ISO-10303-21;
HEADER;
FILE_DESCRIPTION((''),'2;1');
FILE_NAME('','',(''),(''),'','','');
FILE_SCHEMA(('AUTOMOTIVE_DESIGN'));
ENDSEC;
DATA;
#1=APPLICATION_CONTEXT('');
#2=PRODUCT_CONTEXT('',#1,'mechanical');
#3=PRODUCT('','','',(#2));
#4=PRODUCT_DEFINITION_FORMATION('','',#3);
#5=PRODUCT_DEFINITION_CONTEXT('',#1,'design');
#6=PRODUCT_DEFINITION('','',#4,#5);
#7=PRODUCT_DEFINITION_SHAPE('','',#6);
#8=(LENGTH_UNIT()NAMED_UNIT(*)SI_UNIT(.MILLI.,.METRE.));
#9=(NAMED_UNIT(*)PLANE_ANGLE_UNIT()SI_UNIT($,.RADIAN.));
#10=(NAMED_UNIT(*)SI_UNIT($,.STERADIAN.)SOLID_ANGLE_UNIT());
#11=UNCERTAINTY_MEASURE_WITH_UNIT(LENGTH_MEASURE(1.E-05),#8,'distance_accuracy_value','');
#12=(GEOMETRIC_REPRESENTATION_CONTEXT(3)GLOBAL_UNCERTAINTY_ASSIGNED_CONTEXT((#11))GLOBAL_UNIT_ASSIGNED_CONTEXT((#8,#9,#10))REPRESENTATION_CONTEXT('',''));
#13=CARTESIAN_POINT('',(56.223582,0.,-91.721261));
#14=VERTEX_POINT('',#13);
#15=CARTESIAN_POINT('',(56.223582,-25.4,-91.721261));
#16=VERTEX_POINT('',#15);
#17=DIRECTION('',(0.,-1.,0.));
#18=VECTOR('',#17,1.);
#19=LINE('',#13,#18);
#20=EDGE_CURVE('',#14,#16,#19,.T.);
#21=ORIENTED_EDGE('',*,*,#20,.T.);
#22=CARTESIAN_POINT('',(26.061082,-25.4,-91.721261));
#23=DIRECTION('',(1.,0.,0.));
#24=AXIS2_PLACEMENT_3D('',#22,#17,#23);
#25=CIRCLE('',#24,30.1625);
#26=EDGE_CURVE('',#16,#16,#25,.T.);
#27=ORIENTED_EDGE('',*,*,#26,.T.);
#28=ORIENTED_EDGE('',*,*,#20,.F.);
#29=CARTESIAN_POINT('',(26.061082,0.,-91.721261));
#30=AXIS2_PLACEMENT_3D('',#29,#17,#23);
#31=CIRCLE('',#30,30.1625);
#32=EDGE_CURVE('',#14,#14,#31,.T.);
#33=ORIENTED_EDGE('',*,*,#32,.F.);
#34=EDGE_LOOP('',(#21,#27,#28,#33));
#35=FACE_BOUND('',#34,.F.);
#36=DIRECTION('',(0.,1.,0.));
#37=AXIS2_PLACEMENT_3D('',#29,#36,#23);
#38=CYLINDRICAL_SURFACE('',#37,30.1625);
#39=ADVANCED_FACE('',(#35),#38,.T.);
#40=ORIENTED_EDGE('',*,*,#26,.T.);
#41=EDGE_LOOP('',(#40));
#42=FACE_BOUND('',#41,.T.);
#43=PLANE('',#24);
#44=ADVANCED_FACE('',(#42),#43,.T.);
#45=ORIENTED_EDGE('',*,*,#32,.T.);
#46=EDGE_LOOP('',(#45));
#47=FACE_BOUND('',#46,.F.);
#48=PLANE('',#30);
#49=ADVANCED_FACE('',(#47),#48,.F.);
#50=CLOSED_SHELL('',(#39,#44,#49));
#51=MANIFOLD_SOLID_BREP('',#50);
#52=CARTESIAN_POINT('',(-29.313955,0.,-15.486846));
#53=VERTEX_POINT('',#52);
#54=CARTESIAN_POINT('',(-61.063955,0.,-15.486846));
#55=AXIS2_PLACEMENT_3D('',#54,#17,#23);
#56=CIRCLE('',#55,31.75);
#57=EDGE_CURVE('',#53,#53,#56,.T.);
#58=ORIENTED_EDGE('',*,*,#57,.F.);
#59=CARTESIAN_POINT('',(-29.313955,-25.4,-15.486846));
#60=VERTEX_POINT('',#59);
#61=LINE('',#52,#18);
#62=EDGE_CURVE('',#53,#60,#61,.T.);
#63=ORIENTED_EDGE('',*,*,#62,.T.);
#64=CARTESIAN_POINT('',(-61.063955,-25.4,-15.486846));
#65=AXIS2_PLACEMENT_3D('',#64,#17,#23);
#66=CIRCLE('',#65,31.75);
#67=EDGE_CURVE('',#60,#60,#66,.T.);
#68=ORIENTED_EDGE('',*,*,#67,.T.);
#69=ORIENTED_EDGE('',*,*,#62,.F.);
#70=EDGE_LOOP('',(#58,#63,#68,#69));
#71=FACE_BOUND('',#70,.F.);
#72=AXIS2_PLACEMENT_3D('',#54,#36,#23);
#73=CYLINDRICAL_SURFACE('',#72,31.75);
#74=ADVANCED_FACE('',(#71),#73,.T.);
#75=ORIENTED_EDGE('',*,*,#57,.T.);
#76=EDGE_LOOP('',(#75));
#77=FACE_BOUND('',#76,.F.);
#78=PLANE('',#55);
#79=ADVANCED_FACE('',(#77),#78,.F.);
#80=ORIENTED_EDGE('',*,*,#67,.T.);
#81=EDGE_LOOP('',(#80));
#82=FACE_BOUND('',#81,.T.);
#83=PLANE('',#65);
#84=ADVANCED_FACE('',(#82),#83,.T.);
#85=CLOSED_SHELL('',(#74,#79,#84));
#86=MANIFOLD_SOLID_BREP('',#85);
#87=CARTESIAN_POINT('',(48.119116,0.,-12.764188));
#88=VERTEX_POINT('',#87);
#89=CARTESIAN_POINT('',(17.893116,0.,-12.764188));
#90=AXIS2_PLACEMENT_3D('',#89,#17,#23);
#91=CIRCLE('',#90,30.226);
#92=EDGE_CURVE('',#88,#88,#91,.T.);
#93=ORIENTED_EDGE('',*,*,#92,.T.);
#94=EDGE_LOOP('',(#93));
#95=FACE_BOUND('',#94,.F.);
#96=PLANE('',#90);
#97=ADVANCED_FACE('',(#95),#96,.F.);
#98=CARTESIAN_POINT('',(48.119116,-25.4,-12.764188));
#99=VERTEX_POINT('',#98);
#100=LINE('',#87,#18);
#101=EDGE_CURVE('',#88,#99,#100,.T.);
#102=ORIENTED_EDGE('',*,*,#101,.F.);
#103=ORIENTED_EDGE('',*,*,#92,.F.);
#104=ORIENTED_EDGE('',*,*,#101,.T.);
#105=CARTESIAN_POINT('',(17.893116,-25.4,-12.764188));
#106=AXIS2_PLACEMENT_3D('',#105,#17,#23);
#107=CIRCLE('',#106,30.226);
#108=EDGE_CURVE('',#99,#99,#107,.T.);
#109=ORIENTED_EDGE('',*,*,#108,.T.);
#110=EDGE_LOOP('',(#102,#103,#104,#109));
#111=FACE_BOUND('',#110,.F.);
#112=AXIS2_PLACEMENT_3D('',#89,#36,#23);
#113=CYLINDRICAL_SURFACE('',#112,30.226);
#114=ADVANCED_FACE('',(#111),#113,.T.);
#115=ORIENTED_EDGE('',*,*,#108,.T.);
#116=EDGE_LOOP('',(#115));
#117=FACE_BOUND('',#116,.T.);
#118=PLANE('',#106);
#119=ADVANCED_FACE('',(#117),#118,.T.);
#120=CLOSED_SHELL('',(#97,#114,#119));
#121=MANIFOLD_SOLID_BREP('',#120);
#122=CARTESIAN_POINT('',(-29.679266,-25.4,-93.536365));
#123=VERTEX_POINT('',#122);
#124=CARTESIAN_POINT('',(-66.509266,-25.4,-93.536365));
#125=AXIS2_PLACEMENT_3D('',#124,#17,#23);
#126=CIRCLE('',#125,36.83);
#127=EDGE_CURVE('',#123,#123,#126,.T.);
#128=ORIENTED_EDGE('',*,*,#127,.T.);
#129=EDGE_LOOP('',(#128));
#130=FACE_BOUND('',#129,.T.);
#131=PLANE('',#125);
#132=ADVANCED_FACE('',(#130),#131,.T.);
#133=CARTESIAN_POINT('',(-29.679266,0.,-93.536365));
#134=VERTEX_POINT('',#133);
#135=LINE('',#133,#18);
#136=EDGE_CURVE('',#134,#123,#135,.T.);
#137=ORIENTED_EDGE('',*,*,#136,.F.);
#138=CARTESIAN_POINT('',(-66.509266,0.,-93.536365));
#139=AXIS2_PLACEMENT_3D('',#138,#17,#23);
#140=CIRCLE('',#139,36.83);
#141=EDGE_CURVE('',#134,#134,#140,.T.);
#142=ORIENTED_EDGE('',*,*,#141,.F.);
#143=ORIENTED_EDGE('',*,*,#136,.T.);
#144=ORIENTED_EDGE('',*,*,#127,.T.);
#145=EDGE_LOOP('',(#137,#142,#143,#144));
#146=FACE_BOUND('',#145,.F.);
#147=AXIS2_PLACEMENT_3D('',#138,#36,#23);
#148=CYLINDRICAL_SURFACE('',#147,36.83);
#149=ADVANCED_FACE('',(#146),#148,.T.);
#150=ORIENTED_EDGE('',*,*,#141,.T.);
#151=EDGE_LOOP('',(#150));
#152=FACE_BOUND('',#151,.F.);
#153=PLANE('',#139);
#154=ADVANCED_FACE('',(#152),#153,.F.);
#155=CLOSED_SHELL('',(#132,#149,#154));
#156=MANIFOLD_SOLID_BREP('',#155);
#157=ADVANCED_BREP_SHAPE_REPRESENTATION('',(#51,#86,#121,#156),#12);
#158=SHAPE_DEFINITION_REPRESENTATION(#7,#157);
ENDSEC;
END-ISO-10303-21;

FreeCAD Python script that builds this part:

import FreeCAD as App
import Part
import Sketcher
from FreeCAD import Vector
Q = App.Units.Quantity

doc = App.newDocument("Part")
params = doc.addObject("Spreadsheet::Sheet", "Params")
for row, (alias, value) in enumerate([
    ("sketch1_diameter", "2.5 in"),
    ("sketch1_diameter2", "2.9 in"),
    ("sketch1_diameter3", "2.38 in"),
    ("sketch1_diameter4", "2.375 in"),
    ("pad1_length", "1 in"),
], start=1):
    params.set(f"A{row}", alias)
    params.set(f"B{row}", "=" + value)
    params.setAlias(f"B{row}", alias)

body = doc.addObject("PartDesign::Body", "Body")
body.AllowCompound = True

# Sketch on XZ plane
sketch1 = body.newObject("Sketcher::SketchObject", "Sketch")
sketch1.AttachmentSupport = (doc.getObject("XZ_Plane"), [""])
sketch1.MapMode = "FlatFace"
sketch1.addGeometry(Part.Circle(Vector(-61.063955, -15.486846, 0), Vector(0, 0, 1), 31.75), False)
sketch1.addGeometry(Part.Circle(Vector(17.893116, -12.764188, 0), Vector(0, 0, 1), 30.226), False)
sketch1.addGeometry(Part.Circle(Vector(-66.509266, -93.536365, 0), Vector(0, 0, 1), 36.83), False)
sketch1.addGeometry(Part.Circle(Vector(26.061082, -91.721261, 0), Vector(0, 0, 1), 30.1625), False)
sketch1.addConstraint(Sketcher.Constraint("Diameter", 0, Q("2.5 in")))
sketch1.addConstraint(Sketcher.Constraint("Diameter", 2, Q("2.9 in")))
sketch1.addConstraint(Sketcher.Constraint("Diameter", 1, Q("2.38 in")))
sketch1.addConstraint(Sketcher.Constraint("Diameter", 3, Q("2.375 in")))
sketch1.addConstraint(Sketcher.Constraint("DistanceY", 1, 3, -1, 1, Q("12.764188 mm")))
sketch1.addConstraint(Sketcher.Constraint("DistanceX", -1, 1, 3, 3, Q("26.061082 mm")))
sketch1.addConstraint(Sketcher.Constraint("DistanceY", 3, 3, -1, 1, Q("91.721261 mm")))
sketch1.addConstraint(Sketcher.Constraint("DistanceX", 0, 3, 1, 3, Q("78.957071 mm")))
sketch1.addConstraint(Sketcher.Constraint("DistanceX", 2, 3, 0, 3, Q("5.445311 mm")))
sketch1.addConstraint(Sketcher.Constraint("DistanceY", 2, 3, 0, 3, Q("78.049519 mm")))
sketch1.addConstraint(Sketcher.Constraint("DistanceX", 0, 3, -1, 1, Q("61.063955 mm")))
sketch1.addConstraint(Sketcher.Constraint("DistanceY", 0, 3, -1, 1, Q("15.486846 mm")))
sketch1.setExpression("Constraints[0]", "Params.sketch1_diameter")
sketch1.setExpression("Constraints[1]", "Params.sketch1_diameter2")
sketch1.setExpression("Constraints[2]", "Params.sketch1_diameter3")
sketch1.setExpression("Constraints[3]", "Params.sketch1_diameter4")
pad1 = body.newObject("PartDesign::Pad", "Pad")
pad1.Profile = sketch1
pad1.setExpression("Length", "Params.pad1_length")

doc.recompute()
